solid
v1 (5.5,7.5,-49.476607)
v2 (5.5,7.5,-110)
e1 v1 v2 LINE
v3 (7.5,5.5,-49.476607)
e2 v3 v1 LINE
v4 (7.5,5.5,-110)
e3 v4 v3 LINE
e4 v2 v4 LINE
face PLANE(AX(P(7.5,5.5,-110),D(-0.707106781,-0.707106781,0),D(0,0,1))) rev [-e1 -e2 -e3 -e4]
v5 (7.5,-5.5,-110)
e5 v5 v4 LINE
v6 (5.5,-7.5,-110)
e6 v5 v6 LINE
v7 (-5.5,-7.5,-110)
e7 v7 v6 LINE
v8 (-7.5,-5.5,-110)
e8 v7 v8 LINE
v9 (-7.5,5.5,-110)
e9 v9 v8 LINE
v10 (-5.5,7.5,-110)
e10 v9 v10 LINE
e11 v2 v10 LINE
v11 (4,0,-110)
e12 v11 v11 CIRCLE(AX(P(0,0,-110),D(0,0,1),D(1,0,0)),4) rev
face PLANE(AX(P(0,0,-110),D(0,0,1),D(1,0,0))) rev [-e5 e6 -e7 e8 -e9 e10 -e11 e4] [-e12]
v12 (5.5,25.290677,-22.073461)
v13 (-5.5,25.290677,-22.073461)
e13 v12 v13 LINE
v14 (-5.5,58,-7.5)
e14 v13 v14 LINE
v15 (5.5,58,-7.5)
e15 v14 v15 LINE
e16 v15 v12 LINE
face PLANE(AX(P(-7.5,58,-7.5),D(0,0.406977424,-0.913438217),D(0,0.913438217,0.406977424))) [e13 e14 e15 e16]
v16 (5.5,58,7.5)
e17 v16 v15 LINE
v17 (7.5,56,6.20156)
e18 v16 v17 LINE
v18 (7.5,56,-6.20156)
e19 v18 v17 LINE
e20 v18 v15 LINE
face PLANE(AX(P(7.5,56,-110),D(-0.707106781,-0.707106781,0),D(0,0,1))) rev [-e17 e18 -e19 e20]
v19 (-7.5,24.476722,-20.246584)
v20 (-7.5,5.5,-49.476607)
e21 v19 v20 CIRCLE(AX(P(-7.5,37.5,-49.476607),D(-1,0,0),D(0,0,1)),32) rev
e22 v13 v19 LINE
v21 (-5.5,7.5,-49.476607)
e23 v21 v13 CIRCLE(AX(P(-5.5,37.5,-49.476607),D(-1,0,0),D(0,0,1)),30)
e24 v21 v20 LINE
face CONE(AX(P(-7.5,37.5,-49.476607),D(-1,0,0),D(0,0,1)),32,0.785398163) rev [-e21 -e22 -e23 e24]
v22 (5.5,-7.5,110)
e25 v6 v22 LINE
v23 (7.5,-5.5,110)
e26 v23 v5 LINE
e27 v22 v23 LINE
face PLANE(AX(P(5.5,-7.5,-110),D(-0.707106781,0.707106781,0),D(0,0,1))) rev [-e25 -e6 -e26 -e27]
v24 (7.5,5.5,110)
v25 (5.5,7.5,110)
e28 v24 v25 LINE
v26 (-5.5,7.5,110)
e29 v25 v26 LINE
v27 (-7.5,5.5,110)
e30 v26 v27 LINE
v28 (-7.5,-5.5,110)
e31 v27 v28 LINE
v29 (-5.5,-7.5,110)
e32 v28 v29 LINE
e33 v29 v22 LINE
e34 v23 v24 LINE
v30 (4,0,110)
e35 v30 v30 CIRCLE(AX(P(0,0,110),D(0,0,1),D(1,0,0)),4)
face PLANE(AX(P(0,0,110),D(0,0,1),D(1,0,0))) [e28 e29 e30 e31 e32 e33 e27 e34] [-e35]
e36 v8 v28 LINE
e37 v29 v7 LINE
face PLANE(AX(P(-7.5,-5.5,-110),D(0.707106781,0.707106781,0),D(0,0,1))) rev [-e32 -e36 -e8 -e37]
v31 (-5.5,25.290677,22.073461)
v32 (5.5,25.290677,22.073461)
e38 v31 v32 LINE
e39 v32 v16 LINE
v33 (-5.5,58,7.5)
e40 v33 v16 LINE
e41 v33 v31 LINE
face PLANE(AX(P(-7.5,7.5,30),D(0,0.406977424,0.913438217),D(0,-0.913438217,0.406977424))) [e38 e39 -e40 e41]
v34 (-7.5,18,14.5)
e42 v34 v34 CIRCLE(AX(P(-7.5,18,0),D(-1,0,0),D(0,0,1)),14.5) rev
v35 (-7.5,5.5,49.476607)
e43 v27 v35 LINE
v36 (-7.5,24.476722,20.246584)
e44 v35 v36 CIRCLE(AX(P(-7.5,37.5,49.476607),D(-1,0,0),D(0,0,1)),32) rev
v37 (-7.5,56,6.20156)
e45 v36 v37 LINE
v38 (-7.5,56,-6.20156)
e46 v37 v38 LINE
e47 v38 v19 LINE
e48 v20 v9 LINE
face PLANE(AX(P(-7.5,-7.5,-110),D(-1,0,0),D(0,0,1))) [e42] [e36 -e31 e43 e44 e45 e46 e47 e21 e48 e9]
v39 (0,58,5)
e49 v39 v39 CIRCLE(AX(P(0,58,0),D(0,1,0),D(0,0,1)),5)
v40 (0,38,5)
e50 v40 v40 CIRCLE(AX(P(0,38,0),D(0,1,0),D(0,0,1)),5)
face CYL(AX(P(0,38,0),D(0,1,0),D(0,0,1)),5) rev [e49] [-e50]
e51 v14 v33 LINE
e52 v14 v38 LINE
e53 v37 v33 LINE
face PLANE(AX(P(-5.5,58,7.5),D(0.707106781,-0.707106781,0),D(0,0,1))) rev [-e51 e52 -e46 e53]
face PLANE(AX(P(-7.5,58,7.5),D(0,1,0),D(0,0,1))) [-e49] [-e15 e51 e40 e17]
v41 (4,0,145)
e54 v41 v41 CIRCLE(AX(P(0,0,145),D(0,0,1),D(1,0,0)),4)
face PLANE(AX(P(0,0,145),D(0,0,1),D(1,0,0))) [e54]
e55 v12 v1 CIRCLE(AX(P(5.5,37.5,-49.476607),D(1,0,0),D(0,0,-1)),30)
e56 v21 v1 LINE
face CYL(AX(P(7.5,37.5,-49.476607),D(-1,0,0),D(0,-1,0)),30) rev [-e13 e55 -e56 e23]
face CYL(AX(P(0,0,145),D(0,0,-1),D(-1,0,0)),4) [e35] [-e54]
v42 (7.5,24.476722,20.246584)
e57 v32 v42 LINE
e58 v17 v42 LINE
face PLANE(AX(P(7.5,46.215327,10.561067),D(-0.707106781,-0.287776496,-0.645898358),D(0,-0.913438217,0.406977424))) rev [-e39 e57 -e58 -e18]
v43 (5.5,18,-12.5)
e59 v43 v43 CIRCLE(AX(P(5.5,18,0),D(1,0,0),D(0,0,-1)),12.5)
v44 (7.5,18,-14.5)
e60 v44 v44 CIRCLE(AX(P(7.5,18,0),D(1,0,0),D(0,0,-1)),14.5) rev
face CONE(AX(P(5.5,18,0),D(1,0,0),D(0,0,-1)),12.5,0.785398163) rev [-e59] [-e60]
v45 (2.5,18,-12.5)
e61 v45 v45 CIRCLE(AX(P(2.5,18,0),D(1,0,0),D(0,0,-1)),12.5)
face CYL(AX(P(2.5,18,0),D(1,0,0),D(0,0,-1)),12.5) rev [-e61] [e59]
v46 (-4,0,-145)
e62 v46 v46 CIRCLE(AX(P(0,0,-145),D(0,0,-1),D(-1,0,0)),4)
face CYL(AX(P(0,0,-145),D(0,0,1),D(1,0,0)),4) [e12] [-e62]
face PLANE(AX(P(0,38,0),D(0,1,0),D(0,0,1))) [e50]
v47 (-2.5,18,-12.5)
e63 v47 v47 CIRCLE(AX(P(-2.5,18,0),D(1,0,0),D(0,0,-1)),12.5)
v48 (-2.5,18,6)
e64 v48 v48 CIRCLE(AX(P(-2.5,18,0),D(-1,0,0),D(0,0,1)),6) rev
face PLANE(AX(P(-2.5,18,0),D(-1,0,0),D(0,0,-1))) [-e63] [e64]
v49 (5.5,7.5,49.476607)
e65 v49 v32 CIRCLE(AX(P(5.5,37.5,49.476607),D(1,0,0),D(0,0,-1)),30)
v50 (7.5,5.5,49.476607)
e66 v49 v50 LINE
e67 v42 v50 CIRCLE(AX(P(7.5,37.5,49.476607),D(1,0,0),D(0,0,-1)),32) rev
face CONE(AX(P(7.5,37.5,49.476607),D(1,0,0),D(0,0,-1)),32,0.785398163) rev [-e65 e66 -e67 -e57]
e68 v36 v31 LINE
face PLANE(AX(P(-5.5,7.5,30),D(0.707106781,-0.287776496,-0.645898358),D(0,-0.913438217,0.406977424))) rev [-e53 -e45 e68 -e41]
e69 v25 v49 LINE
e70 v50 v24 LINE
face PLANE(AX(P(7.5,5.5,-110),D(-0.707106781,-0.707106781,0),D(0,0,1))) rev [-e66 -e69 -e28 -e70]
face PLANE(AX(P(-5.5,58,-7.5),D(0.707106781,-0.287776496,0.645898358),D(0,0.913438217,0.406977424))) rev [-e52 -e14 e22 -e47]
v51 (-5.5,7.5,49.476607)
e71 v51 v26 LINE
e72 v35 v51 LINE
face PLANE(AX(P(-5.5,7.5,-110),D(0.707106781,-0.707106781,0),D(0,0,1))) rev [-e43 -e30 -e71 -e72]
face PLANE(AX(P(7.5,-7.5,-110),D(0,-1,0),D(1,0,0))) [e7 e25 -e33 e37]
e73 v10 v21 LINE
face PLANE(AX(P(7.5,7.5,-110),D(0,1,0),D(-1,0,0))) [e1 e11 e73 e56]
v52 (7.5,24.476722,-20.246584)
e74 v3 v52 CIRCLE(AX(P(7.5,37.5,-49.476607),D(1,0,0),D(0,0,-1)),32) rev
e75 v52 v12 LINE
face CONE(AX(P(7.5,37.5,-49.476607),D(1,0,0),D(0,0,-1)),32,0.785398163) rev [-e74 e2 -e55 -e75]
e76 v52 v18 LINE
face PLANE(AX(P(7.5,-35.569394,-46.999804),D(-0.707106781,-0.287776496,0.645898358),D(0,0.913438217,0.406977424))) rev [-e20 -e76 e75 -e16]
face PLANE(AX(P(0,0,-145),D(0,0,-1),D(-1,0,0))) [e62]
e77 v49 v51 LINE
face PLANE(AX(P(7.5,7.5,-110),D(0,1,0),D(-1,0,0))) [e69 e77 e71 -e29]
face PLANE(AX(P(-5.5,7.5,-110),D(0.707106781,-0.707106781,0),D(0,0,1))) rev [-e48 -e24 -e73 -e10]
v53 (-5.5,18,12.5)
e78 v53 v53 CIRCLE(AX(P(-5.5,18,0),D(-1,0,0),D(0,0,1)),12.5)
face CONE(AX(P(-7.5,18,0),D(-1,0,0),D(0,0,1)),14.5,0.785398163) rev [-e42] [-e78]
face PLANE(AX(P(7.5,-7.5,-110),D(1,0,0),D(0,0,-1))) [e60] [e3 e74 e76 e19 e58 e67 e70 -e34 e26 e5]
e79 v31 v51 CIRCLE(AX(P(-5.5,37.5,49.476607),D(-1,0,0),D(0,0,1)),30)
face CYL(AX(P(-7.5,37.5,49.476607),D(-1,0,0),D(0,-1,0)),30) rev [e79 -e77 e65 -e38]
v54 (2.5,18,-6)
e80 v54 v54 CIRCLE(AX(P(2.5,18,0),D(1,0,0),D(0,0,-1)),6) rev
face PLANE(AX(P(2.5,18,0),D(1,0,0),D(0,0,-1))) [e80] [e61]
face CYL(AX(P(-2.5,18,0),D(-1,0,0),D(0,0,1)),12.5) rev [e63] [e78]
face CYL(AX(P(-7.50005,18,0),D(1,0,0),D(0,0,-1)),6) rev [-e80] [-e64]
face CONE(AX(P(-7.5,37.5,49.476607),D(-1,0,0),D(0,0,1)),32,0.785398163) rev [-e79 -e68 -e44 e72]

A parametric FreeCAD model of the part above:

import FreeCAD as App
import Part
import Sketcher

V = App.Vector


def edges_at(feature, points):
    """Names of the edges that pass closest to the given points."""
    edges = feature.Shape.Edges
    near = lambda p: min(range(len(edges)), key=lambda i: edges[i].distToShape(Part.Vertex(*p))[0])
    return sorted({f"Edge{near(p) + 1}" for p in points})


def add_polygon(sketch, points):
    """Adds a closed chain of lines whose ends are joined by coincident constraints."""
    first, n = sketch.GeometryCount, len(points)
    for a, b in zip(points, points[1:] + points[:1]):
        sketch.addGeometry(Part.LineSegment(App.Vector(*a, 0), App.Vector(*b, 0)), False)
    for i in range(n):
        sketch.addConstraint(Sketcher.Constraint("Coincident", first + i, 2, first + (i + 1) % n, 1))

doc = App.newDocument("Part")
body = doc.addObject("PartDesign::Body", "Body")

sketch1 = doc.addObject("Sketcher::SketchObject", "Sketch")
body.addObject(sketch1)
sketch1.AttachmentSupport = (doc.XY_Plane, [""])
sketch1.MapMode = "FlatFace"
add_polygon(sketch1, [(-8, 8), (-8, -8), (8, -8), (8, 8)])
sketch1.addConstraint(Sketcher.Constraint("Vertical", 0))
sketch1.addConstraint(Sketcher.Constraint("Horizontal", 1))
sketch1.addConstraint(Sketcher.Constraint("Vertical", 2))
sketch1.addConstraint(Sketcher.Constraint("Horizontal", 3))
sketch1.addConstraint(Sketcher.Constraint("Symmetric", 0, 2, 2, 2, -1, 1))
sketch1.addConstraint(Sketcher.Constraint("Equal", 3, 0))
sketch1.addConstraint(Sketcher.Constraint("DistanceX", 1, 1, 1, 2, 15.0))
pad1 = doc.addObject("PartDesign::Pad", "Pad")
body.addObject(pad1)
pad1.Profile = sketch1
pad1.Type = "TwoLengths"
pad1.Length = 110
pad1.Length2 = 110

sketch2 = doc.addObject("Sketcher::SketchObject", "Sketch001")
body.addObject(sketch2)
sketch2.AttachmentSupport = (doc.XY_Plane, [""])
sketch2.MapMode = "FlatFace"
sketch2.AttachmentOffset = App.Placement(V(0, 0, 110), App.Rotation())
sketch2.addGeometry(Part.Circle(V(0, 0, 0), V(0, 0, 1), 4), False)
sketch2.addConstraint(Sketcher.Constraint("Coincident", 0, 3, -1, 1))
sketch2.addConstraint(Sketcher.Constraint("Diameter", 0, 8.0))
pad2 = doc.addObject("PartDesign::Pad", "Pad001")
body.addObject(pad2)
pad2.Profile = sketch2
pad2.Length = 35

sketch3 = doc.addObject("Sketcher::SketchObject", "Sketch002")
body.addObject(sketch3)
sketch3.AttachmentSupport = (doc.XY_Plane, [""])
sketch3.MapMode = "FlatFace"
sketch3.AttachmentOffset = App.Placement(V(0, 0, -145), App.Rotation())
sketch3.addGeometry(Part.Circle(V(0, 0, 0), V(0, 0, 1), 4), False)
sketch3.addConstraint(Sketcher.Constraint("Coincident", 0, 3, -1, 1))
sketch3.addConstraint(Sketcher.Constraint("Diameter", 0, 8.0))
pad3 = doc.addObject("PartDesign::Pad", "Pad002")
body.addObject(pad3)
pad3.Profile = sketch3
pad3.Length = 35

sketch4 = doc.addObject("Sketcher::SketchObject", "Sketch003")
body.addObject(sketch4)
sketch4.AttachmentSupport = (doc.YZ_Plane, [""])
sketch4.MapMode = "FlatFace"
add_polygon(sketch4, [(58, 8), (8, 30), (8, -30), (58, -8)])
sketch4.addConstraint(Sketcher.Constraint("Vertical", 1))
sketch4.addConstraint(Sketcher.Constraint("Vertical", 3))
sketch4.addConstraint(Sketcher.Constraint("Equal", 0, 2))
sketch4.addConstraint(Sketcher.Constraint("DistanceY", 1, 2, 1, 1, 60.0))
sketch4.addConstraint(Sketcher.Constraint("DistanceY", 3, 1, 3, 2, 15.0))
sketch4.addConstraint(Sketcher.Constraint("DistanceY", -1, 1, 0, 2, 30.0))
sketch4.addConstraint(Sketcher.Constraint("DistanceX", -1, 1, 2, 2, 58.0))
sketch4.addConstraint(Sketcher.Constraint("DistanceX", -1, 1, 0, 2, 7.5))
pad4 = doc.addObject("PartDesign::Pad", "Pad003")
body.addObject(pad4)
pad4.Profile = sketch4
pad4.Type = "TwoLengths"
pad4.Length = 7.5
pad4.Length2 = 7.5

sketch5 = doc.addObject("Sketcher::SketchObject", "Sketch004")
body.addObject(sketch5)
sketch5.AttachmentSupport = (doc.YZ_Plane, [""])
sketch5.MapMode = "FlatFace"
sketch5.AttachmentOffset = App.Placement(V(0, 0, 7.5), App.Rotation())
sketch5.addGeometry(Part.Circle(V(18, 0, 0), V(0, 0, 1), 6), False)
sketch5.addConstraint(Sketcher.Constraint("PointOnObject", 0, 3, -1))
sketch5.addConstraint(Sketcher.Constraint("Diameter", 0, 12.0))
sketch5.addConstraint(Sketcher.Constraint("DistanceX", -1, 1, 0, 3, 18.0))
pocket1 = doc.addObject("PartDesign::Pocket", "Pocket")
body.addObject(pocket1)
pocket1.Profile = sketch5
pocket1.Type = "ThroughAll"

sketch6 = doc.addObject("Sketcher::SketchObject", "Sketch005")
body.addObject(sketch6)
sketch6.AttachmentSupport = (doc.XZ_Plane, [""])
sketch6.MapMode = "FlatFace"
sketch6.AttachmentOffset = App.Placement(V(0, 0, -58), App.Rotation())
sketch6.addGeometry(Part.Circle(V(0, 0, 0), V(0, 0, 1), 5), False)
sketch6.addConstraint(Sketcher.Constraint("Coincident", 0, 3, -1, 1))
sketch6.addConstraint(Sketcher.Constraint("Diameter", 0, 10.0))
pocket2 = doc.addObject("PartDesign::Pocket", "Pocket001")
body.addObject(pocket2)
pocket2.Profile = sketch6
pocket2.Length = 20
pocket2.Reversed = True

sketch7 = doc.addObject("Sketcher::SketchObject", "Sketch006")
body.addObject(sketch7)
sketch7.AttachmentSupport = (doc.YZ_Plane, [""])
sketch7.MapMode = "FlatFace"
sketch7.AttachmentOffset = App.Placement(V(0, 0, 7.5), App.Rotation())
sketch7.addGeometry(Part.Circle(V(18, 0, 0), V(0, 0, 1), 12), False)
sketch7.addConstraint(Sketcher.Constraint("PointOnObject", 0, 3, -1))
sketch7.addConstraint(Sketcher.Constraint("Diameter", 0, 25.0))
sketch7.addConstraint(Sketcher.Constraint("DistanceX", -1, 1, 0, 3, 18.0))
pocket3 = doc.addObject("PartDesign::Pocket", "Pocket002")
body.addObject(pocket3)
pocket3.Profile = sketch7
pocket3.Length = 5
doc.recompute()

mirrored = doc.addObject("PartDesign::Mirrored", "Mirrored")
body.addObject(mirrored)
mirrored.Originals = [pocket3]
mirrored.MirrorPlane = (doc.YZ_Plane, [""])
body.Tip = mirrored
doc.recompute()

fillet = doc.addObject("PartDesign::Fillet", "Fillet")
body.addObject(fillet)
fillet.Base = (mirrored, edges_at(mirrored, [(0, 7.5, -30), (0, 7.5, 30)]))
fillet.Radius = 30
doc.recompute()

chamfer = doc.addObject("PartDesign::Chamfer", "Chamfer")
body.addObject(chamfer)
chamfer.Base = (fillet, edges_at(fillet, [
    (-7.5, 41.645, 14.787),
    (-7.5, 58, 0),
    (7.5, 58, 0),
    (7.5, 41.645, 14.787),
    (7.5, 18, 12.5),
    (-7.5, 18, 12.5),
    (7.5, 41.645, -14.787),
    (-7.5, 41.645, -14.787),
    (-7.5, 7.5, 79.738),
    (-7.5, 7.5, -79.738),
    (7.5, 7.5, 79.738),
    (7.5, 7.5, -79.738),
    (7.5, 12.338, -33.141),
    (-7.5, 12.338, -33.141),
    (7.5, -7.5, 0),
    (7.5, 12.338, 33.141),
    (-7.5, 12.338, 33.141),
    (-7.5, -7.5, 0),
]))
chamfer.Size = 2

doc.recompute()
